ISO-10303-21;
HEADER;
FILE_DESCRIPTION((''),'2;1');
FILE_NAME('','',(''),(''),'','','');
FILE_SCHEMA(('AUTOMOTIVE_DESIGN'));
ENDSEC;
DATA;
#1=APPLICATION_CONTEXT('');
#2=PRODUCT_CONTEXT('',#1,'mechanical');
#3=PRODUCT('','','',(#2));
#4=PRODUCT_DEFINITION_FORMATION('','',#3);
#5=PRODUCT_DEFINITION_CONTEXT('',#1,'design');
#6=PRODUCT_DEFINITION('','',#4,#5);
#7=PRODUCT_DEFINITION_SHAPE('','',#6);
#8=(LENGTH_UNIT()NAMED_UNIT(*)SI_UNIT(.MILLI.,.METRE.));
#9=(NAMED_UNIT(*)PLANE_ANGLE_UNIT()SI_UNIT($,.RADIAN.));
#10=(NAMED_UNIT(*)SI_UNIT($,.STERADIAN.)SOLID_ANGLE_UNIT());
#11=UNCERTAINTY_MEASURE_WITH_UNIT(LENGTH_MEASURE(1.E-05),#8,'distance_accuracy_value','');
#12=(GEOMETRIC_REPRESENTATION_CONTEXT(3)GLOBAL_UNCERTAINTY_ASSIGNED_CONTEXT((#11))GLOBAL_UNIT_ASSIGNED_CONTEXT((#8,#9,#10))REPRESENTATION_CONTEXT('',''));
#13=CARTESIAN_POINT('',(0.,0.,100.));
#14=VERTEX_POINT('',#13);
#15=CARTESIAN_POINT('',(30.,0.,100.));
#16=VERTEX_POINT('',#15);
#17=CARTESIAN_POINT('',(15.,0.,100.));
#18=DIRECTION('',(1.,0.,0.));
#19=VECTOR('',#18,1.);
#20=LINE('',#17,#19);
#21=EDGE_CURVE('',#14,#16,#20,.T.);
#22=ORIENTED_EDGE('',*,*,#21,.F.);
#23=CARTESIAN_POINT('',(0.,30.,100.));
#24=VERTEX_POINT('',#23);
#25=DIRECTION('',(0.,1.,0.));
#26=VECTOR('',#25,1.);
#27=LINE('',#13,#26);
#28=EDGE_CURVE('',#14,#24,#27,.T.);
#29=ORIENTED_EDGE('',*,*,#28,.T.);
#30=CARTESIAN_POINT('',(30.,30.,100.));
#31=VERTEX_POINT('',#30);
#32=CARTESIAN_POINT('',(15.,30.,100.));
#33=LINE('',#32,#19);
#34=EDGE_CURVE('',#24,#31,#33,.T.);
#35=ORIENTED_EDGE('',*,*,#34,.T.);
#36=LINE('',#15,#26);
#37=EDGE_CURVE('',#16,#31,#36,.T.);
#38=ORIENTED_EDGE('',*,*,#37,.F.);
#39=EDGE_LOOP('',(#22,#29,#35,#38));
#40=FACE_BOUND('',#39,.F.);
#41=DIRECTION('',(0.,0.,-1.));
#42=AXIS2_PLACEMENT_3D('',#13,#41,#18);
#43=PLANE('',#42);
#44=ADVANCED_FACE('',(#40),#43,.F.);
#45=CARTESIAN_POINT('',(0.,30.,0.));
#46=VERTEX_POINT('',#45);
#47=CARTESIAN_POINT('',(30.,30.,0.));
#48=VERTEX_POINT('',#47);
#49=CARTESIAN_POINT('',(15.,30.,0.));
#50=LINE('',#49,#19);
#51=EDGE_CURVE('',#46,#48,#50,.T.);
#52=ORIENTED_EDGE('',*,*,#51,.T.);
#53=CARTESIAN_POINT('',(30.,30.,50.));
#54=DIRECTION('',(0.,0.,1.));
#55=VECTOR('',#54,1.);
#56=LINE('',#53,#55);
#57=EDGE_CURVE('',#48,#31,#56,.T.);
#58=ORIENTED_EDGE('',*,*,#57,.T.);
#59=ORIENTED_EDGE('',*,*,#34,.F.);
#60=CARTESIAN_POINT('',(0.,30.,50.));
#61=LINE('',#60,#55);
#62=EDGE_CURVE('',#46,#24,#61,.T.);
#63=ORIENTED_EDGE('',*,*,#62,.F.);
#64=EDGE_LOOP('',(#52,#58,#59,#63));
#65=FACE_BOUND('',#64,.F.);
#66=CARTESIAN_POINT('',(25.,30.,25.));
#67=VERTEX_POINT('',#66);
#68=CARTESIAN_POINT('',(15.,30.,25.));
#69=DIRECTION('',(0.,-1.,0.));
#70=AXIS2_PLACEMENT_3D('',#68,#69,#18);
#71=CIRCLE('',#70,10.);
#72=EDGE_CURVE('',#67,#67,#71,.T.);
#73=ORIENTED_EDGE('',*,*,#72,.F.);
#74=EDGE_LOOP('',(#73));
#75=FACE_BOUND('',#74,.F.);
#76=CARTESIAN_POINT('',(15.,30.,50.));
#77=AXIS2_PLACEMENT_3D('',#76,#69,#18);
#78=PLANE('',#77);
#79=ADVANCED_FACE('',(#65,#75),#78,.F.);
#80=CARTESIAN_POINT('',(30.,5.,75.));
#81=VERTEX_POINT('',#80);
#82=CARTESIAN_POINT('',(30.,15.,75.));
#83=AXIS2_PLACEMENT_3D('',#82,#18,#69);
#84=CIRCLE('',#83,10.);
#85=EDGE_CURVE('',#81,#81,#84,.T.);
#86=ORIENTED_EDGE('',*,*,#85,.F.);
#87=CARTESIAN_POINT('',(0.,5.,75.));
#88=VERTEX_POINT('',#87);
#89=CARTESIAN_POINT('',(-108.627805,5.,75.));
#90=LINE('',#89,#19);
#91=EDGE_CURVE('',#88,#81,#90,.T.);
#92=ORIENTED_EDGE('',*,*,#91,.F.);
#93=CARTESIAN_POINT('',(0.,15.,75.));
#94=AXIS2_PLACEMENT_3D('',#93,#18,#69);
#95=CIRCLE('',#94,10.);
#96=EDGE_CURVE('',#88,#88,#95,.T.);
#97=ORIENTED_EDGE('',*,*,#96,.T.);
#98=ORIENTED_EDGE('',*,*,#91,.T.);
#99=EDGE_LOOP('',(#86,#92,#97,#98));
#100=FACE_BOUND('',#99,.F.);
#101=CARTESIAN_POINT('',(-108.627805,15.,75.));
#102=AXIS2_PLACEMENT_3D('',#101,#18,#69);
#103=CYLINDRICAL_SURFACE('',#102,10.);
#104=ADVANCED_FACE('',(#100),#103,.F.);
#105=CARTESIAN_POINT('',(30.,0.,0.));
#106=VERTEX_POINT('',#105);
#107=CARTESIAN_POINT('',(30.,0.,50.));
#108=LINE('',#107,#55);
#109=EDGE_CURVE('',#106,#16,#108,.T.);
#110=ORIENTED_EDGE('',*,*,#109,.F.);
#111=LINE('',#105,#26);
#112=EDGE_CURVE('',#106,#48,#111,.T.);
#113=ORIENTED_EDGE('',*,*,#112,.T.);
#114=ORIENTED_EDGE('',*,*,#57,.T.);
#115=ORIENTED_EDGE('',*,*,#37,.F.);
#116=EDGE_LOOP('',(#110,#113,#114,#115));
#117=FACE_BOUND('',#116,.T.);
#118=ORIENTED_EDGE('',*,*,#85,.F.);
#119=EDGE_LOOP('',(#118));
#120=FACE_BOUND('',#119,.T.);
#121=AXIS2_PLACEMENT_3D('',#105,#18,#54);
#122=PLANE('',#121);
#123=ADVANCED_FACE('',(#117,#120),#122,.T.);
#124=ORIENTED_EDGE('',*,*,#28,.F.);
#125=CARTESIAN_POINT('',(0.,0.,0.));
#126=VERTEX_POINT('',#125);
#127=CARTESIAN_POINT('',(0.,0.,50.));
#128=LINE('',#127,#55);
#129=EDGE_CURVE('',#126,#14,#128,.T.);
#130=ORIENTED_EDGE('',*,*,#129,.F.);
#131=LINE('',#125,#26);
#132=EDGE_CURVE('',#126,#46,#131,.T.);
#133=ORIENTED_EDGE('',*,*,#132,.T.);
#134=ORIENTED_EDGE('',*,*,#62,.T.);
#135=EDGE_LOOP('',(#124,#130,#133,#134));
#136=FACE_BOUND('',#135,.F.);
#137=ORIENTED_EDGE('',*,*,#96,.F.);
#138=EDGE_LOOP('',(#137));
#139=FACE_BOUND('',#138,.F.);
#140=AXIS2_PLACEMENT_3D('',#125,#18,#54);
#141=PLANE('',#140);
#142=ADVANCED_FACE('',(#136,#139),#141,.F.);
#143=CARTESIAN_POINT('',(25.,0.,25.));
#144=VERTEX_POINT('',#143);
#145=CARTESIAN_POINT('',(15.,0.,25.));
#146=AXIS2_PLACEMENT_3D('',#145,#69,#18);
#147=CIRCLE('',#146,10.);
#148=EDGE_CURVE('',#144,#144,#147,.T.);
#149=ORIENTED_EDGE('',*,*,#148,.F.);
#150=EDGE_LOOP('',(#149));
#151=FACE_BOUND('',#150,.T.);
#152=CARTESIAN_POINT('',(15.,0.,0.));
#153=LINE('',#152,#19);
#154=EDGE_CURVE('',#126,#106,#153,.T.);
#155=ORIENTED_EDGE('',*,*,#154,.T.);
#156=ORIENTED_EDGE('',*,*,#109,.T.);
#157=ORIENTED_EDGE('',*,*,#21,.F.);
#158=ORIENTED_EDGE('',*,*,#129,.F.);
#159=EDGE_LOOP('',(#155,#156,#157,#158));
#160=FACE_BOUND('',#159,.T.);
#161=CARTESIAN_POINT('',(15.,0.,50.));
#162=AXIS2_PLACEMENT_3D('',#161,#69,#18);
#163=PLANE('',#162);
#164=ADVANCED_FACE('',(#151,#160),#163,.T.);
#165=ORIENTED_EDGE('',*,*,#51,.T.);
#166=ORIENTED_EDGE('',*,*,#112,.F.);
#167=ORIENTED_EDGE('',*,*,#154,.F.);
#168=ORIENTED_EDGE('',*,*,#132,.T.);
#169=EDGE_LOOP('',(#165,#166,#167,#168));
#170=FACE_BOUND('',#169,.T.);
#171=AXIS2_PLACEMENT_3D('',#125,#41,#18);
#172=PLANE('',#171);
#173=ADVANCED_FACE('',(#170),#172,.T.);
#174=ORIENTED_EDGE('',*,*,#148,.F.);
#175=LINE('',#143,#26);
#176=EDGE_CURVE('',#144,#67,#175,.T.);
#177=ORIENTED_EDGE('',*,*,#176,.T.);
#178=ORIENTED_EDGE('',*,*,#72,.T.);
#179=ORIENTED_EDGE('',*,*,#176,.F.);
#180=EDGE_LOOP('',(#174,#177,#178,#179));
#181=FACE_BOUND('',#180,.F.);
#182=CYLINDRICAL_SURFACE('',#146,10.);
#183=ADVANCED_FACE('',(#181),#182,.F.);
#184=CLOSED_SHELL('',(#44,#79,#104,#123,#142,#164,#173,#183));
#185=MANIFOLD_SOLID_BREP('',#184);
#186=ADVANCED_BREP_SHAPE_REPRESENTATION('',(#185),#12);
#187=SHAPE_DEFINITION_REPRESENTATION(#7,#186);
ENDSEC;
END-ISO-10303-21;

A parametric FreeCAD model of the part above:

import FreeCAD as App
import Part
import Sketcher

V = App.Vector

doc = App.newDocument("Part")
body = doc.addObject("PartDesign::Body", "Body")

sketch1 = body.newObject("Sketcher::SketchObject", "Sketch")
sketch1.AttachmentSupport = (doc.getObject("XZ_Plane"), [""])
sketch1.MapMode = "FlatFace"
sketch1.addGeometry([
    Part.LineSegment(V(0, 100, 0), V(0, 0, 0)),
    Part.LineSegment(V(0, 0, 0), V(30, 0, 0)),
    Part.LineSegment(V(30, 0, 0), V(30, 100, 0)),
    Part.LineSegment(V(30, 100, 0), V(0, 100, 0)),
    Part.Circle(V(15, 25, 0), V(0, 0, 1), 10),
], False)
sketch1.addConstraint([
    Sketcher.Constraint("Coincident", 0, 2, 1, 1),
    Sketcher.Constraint("Coincident", 1, 2, 2, 1),
    Sketcher.Constraint("Coincident", 2, 2, 3, 1),
    Sketcher.Constraint("Coincident", 3, 2, 0, 1),
    Sketcher.Constraint("Vertical", 0),
    Sketcher.Constraint("Horizontal", 1),
    Sketcher.Constraint("Vertical", 2),
    Sketcher.Constraint("Horizontal", 3),
    Sketcher.Constraint("Coincident", 0, 2, -1, 1),
    Sketcher.Constraint("Diameter", 4, 20.0),
    Sketcher.Constraint("DistanceX", 1, 1, 1, 2, 30.0),
    Sketcher.Constraint("DistanceY", 0, 2, 0, 1, 100.0),
    Sketcher.Constraint("DistanceX", -1, 1, 4, 3, 15.0),
    Sketcher.Constraint("DistanceY", -1, 1, 4, 3, 25.0),
])
pad1 = body.newObject("PartDesign::Pad", "Pad")
pad1.Profile = sketch1
pad1.Length = 30
pad1.Reversed = True

sketch2 = body.newObject("Sketcher::SketchObject", "Sketch001")
sketch2.AttachmentSupport = (doc.getObject("YZ_Plane"), [""])
sketch2.MapMode = "FlatFace"
sketch2.addGeometry(Part.Circle(V(15, 75, 0), V(0, 0, 1), 10), False)
sketch2.addConstraint([
    Sketcher.Constraint("Diameter", 0, 20.0),
    Sketcher.Constraint("DistanceX", -1, 1, 0, 3, 15.0),
    Sketcher.Constraint("DistanceY", -1, 1, 0, 3, 75.0),
])
doc.recompute()
hole = body.newObject("PartDesign::Hole", "Hole")
hole.Profile = sketch2
hole.ThreadType = "None"
hole.Diameter = 20
hole.DepthType = "ThroughAll"
hole.Reversed = True

doc.recompute()
